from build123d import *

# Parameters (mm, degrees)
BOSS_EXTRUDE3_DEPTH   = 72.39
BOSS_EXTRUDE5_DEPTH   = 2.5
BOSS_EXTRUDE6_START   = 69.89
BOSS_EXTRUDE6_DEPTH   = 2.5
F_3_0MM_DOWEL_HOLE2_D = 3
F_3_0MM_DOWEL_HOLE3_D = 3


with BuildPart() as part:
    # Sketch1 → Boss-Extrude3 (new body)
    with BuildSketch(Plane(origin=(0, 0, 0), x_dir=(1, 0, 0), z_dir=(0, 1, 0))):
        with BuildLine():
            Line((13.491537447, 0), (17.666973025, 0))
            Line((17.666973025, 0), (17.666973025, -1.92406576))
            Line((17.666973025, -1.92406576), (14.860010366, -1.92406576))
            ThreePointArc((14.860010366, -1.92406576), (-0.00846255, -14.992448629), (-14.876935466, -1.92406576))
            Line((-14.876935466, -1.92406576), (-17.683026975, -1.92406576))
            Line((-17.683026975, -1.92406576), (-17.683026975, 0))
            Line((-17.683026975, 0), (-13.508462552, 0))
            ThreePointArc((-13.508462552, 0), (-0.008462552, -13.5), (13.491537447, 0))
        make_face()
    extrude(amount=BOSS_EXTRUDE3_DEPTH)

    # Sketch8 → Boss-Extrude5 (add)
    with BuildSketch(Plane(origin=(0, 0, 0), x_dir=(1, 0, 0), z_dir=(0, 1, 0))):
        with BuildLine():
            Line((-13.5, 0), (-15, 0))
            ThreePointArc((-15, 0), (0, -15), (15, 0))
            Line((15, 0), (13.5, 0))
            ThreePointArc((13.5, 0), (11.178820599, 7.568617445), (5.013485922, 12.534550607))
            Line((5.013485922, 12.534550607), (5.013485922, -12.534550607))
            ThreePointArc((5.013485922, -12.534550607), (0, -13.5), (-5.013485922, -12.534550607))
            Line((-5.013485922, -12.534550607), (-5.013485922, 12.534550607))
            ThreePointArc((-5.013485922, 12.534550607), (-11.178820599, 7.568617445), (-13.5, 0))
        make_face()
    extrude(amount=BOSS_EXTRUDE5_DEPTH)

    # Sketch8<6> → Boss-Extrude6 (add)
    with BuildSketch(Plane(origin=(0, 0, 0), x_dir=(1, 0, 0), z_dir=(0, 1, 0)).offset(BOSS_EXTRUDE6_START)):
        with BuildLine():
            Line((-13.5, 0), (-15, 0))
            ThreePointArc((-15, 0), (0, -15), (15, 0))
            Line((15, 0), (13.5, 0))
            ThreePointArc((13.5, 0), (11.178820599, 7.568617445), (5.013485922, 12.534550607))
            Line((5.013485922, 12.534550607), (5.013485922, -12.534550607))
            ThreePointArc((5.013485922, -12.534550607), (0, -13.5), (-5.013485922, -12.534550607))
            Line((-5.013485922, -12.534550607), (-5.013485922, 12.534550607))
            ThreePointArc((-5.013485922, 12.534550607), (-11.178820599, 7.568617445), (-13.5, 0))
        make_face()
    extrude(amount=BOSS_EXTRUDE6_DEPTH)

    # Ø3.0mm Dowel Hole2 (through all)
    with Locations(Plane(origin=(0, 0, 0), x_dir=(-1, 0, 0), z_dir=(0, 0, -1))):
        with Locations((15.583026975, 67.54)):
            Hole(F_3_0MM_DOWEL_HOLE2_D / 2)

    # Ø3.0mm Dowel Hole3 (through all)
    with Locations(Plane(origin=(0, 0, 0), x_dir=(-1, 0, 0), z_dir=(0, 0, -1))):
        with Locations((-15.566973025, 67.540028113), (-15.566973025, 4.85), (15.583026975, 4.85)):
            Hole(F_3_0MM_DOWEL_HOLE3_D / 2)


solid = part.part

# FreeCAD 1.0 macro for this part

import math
import FreeCAD as App
import Part
import Sketcher

doc = App.newDocument("Part")
body = doc.addObject("PartDesign::Body", "Body")

# Sketch on XZ plane
sketch1 = body.newObject("Sketcher::SketchObject", "Sketch")
sketch1.AttachmentSupport = (doc.getObject("XZ_Plane"), [""])
sketch1.MapMode = "FlatFace"
sketch1.addGeometry(Part.LineSegment(App.Vector(17.7, 0, 0), App.Vector(13.5, 0, 0)), False)
sketch1.addGeometry(Part.ArcOfCircle(Part.Circle(App.Vector(0, 0, 0), App.Vector(0, 0, 1), 13.5), math.radians(0), math.radians(180)), False)
sketch1.addGeometry(Part.LineSegment(App.Vector(-13.5, 0, 0), App.Vector(-17.7, 0, 0)), False)
sketch1.addGeometry(Part.LineSegment(App.Vector(-17.7, 0, 0), App.Vector(-17.7, 1.9, 0)), False)
sketch1.addGeometry(Part.LineSegment(App.Vector(-17.7, 1.9, 0), App.Vector(-14.9, 1.9, 0)), False)
sketch1.addGeometry(Part.ArcOfCircle(Part.Circle(App.Vector(0, 0, 0), App.Vector(0, 0, 1), 15), math.radians(7), math.radians(173)), False)
sketch1.addGeometry(Part.LineSegment(App.Vector(14.9, 1.9, 0), App.Vector(17.7, 1.9, 0)), False)
sketch1.addGeometry(Part.LineSegment(App.Vector(17.7, 1.9, 0), App.Vector(17.7, 0, 0)), False)
sketch1.addConstraint(Sketcher.Constraint("Coincident", 0, 2, 1, 1))
sketch1.addConstraint(Sketcher.Constraint("Coincident", 1, 2, 2, 1))
sketch1.addConstraint(Sketcher.Constraint("Coincident", 2, 2, 3, 1))
sketch1.addConstraint(Sketcher.Constraint("Coincident", 3, 2, 4, 1))
sketch1.addConstraint(Sketcher.Constraint("Coincident", 4, 2, 5, 2))
sketch1.addConstraint(Sketcher.Constraint("Coincident", 5, 1, 6, 1))
sketch1.addConstraint(Sketcher.Constraint("Coincident", 6, 2, 7, 1))
sketch1.addConstraint(Sketcher.Constraint("Coincident", 7, 2, 0, 1))
sketch1.addConstraint(Sketcher.Constraint("Horizontal", 0))
sketch1.addConstraint(Sketcher.Constraint("Horizontal", 2))
sketch1.addConstraint(Sketcher.Constraint("Vertical", 3))
sketch1.addConstraint(Sketcher.Constraint("Horizontal", 4))
sketch1.addConstraint(Sketcher.Constraint("Horizontal", 6))
sketch1.addConstraint(Sketcher.Constraint("Vertical", 7))
sketch1.addConstraint(Sketcher.Constraint("Coincident", 5, 3, 1, 3))
sketch1.addConstraint(Sketcher.Constraint("PointOnObject", 1, 3, -1))
sketch1.addConstraint(Sketcher.Constraint("PointOnObject", 0, 2, -1))
sketch1.addConstraint(Sketcher.Constraint("PointOnObject", 1, 2, -1))
sketch1.addConstraint(Sketcher.Constraint("Horizontal", 4, 2, 5, 1))
sketch1.addConstraint(Sketcher.Constraint("Radius", 1, 13.5))
sketch1.addConstraint(Sketcher.Constraint("Radius", 5, 14.992449))
sketch1.addConstraint(Sketcher.Constraint("DistanceX", 4, 1, 4, 2, 2.806092))
sketch1.addConstraint(Sketcher.Constraint("DistanceX", 0, 2, 0, 1, 4.175436))
sketch1.addConstraint(Sketcher.Constraint("DistanceX", 2, 2, 2, 1, 4.174564))
sketch1.addConstraint(Sketcher.Constraint("DistanceX", -1, 1, 5, 1, 14.86001))
pad1 = body.newObject("PartDesign::Pad", "Pad")
pad1.Profile = sketch1
pad1.Length = 72.39
pad1.Reversed = True

# Sketch on XZ plane
sketch2 = body.newObject("Sketcher::SketchObject", "Sketch001")
sketch2.AttachmentSupport = (doc.getObject("XZ_Plane"), [""])
sketch2.MapMode = "FlatFace"
sketch2.addGeometry(Part.LineSegment(App.Vector(-13.5, 0, 0), App.Vector(-15, 0, 0)), False)
sketch2.addGeometry(Part.ArcOfCircle(Part.Circle(App.Vector(0, 0, 0), App.Vector(0, 0, 1), 15), math.radians(0), math.radians(180)), False)
sketch2.addGeometry(Part.LineSegment(App.Vector(15, 0, 0), App.Vector(13.5, 0, 0)), False)
sketch2.addGeometry(Part.ArcOfCircle(Part.Circle(App.Vector(0, 0, 0), App.Vector(0, 0, 1), 13.5), math.radians(-68), math.radians(0)), False)
sketch2.addGeometry(Part.LineSegment(App.Vector(5, -12.5, 0), App.Vector(5, 12.5, 0)), False)
sketch2.addGeometry(Part.ArcOfCircle(Part.Circle(App.Vector(0, 0, 0), App.Vector(0, 0, 1), 13.5), math.radians(68), math.radians(112)), False)
sketch2.addGeometry(Part.LineSegment(App.Vector(-5, 12.5, 0), App.Vector(-5, -12.5, 0)), False)
sketch2.addGeometry(Part.ArcOfCircle(Part.Circle(App.Vector(0, 0, 0), App.Vector(0, 0, 1), 13.5), math.radians(180), math.radians(248)), False)
sketch2.addConstraint(Sketcher.Constraint("Coincident", 0, 2, 1, 2))
sketch2.addConstraint(Sketcher.Constraint("Coincident", 1, 1, 2, 1))
sketch2.addConstraint(Sketcher.Constraint("Coincident", 2, 2, 3, 2))
sketch2.addConstraint(Sketcher.Constraint("Coincident", 3, 1, 4, 1))
sketch2.addConstraint(Sketcher.Constraint("Coincident", 4, 2, 5, 1))
sketch2.addConstraint(Sketcher.Constraint("Coincident", 5, 2, 6, 1))
sketch2.addConstraint(Sketcher.Constraint("Coincident", 6, 2, 7, 2))
sketch2.addConstraint(Sketcher.Constraint("Coincident", 7, 1, 0, 1))
sketch2.addConstraint(Sketcher.Constraint("Horizontal", 0))
sketch2.addConstraint(Sketcher.Constraint("Horizontal", 2))
sketch2.addConstraint(Sketcher.Constraint("Vertical", 4))
sketch2.addConstraint(Sketcher.Constraint("Vertical", 6))
sketch2.addConstraint(Sketcher.Constraint("Coincident", 1, 3, -1, 1))
sketch2.addConstraint(Sketcher.Constraint("Coincident", 3, 3, -1, 1))
sketch2.addConstraint(Sketcher.Constraint("Coincident", 5, 3, -1, 1))
sketch2.addConstraint(Sketcher.Constraint("Coincident", 7, 3, -1, 1))
sketch2.addConstraint(Sketcher.Constraint("Equal", 3, 5))
sketch2.addConstraint(Sketcher.Constraint("Equal", 5, 7))
sketch2.addConstraint(Sketcher.Constraint("PointOnObject", 0, 2, -1))
sketch2.addConstraint(Sketcher.Constraint("PointOnObject", 1, 1, -1))
sketch2.addConstraint(Sketcher.Constraint("Horizontal", 4, 2, 5, 2))
sketch2.addConstraint(Sketcher.Constraint("Radius", 1, 15.0))
sketch2.addConstraint(Sketcher.Constraint("Radius", 3, 13.5))
sketch2.addConstraint(Sketcher.Constraint("DistanceY", 4, 1, 4, 2, 25.069101))
pad2 = body.newObject("PartDesign::Pad", "Pad001")
pad2.Profile = sketch2
pad2.Length = 2.5
pad2.Reversed = True

# Sketch on XZ plane
sketch3 = body.newObject("Sketcher::SketchObject", "Sketch002")
sketch3.AttachmentSupport = (doc.getObject("XZ_Plane"), [""])
sketch3.MapMode = "FlatFace"
sketch3.AttachmentOffset = App.Placement(App.Vector(0, 0, -69.89), App.Rotation())
sketch3.addGeometry(Part.LineSegment(App.Vector(-13.5, 0, 0), App.Vector(-15, 0, 0)), False)
sketch3.addGeometry(Part.ArcOfCircle(Part.Circle(App.Vector(0, 0, 0), App.Vector(0, 0, 1), 15), math.radians(0), math.radians(180)), False)
sketch3.addGeometry(Part.LineSegment(App.Vector(15, 0, 0), App.Vector(13.5, 0, 0)), False)
sketch3.addGeometry(Part.ArcOfCircle(Part.Circle(App.Vector(0, 0, 0), App.Vector(0, 0, 1), 13.5), math.radians(-68), math.radians(0)), False)
sketch3.addGeometry(Part.LineSegment(App.Vector(5, -12.5, 0), App.Vector(5, 12.5, 0)), False)
sketch3.addGeometry(Part.ArcOfCircle(Part.Circle(App.Vector(0, 0, 0), App.Vector(0, 0, 1), 13.5), math.radians(68), math.radians(112)), False)
sketch3.addGeometry(Part.LineSegment(App.Vector(-5, 12.5, 0), App.Vector(-5, -12.5, 0)), False)
sketch3.addGeometry(Part.ArcOfCircle(Part.Circle(App.Vector(0, 0, 0), App.Vector(0, 0, 1), 13.5), math.radians(180), math.radians(248)), False)
sketch3.addConstraint(Sketcher.Constraint("Coincident", 0, 2, 1, 2))
sketch3.addConstraint(Sketcher.Constraint("Coincident", 1, 1, 2, 1))
sketch3.addConstraint(Sketcher.Constraint("Coincident", 2, 2, 3, 2))
sketch3.addConstraint(Sketcher.Constraint("Coincident", 3, 1, 4, 1))
sketch3.addConstraint(Sketcher.Constraint("Coincident", 4, 2, 5, 1))
sketch3.addConstraint(Sketcher.Constraint("Coincident", 5, 2, 6, 1))
sketch3.addConstraint(Sketcher.Constraint("Coincident", 6, 2, 7, 2))
sketch3.addConstraint(Sketcher.Constraint("Coincident", 7, 1, 0, 1))
sketch3.addConstraint(Sketcher.Constraint("Horizontal", 0))
sketch3.addConstraint(Sketcher.Constraint("Horizontal", 2))
sketch3.addConstraint(Sketcher.Constraint("Vertical", 4))
sketch3.addConstraint(Sketcher.Constraint("Vertical", 6))
sketch3.addConstraint(Sketcher.Constraint("Coincident", 1, 3, -1, 1))
sketch3.addConstraint(Sketcher.Constraint("Coincident", 3, 3, -1, 1))
sketch3.addConstraint(Sketcher.Constraint("Coincident", 5, 3, -1, 1))
sketch3.addConstraint(Sketcher.Constraint("Coincident", 7, 3, -1, 1))
sketch3.addConstraint(Sketcher.Constraint("Equal", 3, 5))
sketch3.addConstraint(Sketcher.Constraint("Equal", 5, 7))
sketch3.addConstraint(Sketcher.Constraint("PointOnObject", 0, 2, -1))
sketch3.addConstraint(Sketcher.Constraint("PointOnObject", 1, 1, -1))
sketch3.addConstraint(Sketcher.Constraint("Horizontal", 4, 2, 5, 2))
sketch3.addConstraint(Sketcher.Constraint("Radius", 1, 15.0))
sketch3.addConstraint(Sketcher.Constraint("Radius", 3, 13.5))
sketch3.addConstraint(Sketcher.Constraint("DistanceY", 4, 1, 4, 2, 25.069101))
pad3 = body.newObject("PartDesign::Pad", "Pad002")
pad3.Profile = sketch3
pad3.Length = 2.5
pad3.Reversed = True

# Sketch on XY plane
sketch4 = body.newObject("Sketcher::SketchObject", "Sketch003")
sketch4.AttachmentSupport = (doc.getObject("XY_Plane"), [""])
sketch4.MapMode = "FlatFace"
sketch4.addGeometry(Part.Circle(App.Vector(-15.6, 67.5, 0), App.Vector(0, 0, 1), 1.5), False)
sketch4.addConstraint(Sketcher.Constraint("Diameter", 0, 3.0))
sketch4.addConstraint(Sketcher.Constraint("DistanceY", -1, 1, 0, 3, 67.54))
sketch4.addConstraint(Sketcher.Constraint("DistanceX", 0, 3, -1, 1, 15.583027))
doc.recompute()
hole = body.newObject("PartDesign::Hole", "Hole")
hole.Profile = sketch4
hole.ThreadType = "None"
hole.Diameter = 3
hole.DepthType = "ThroughAll"
hole.Reversed = True

# Sketch on XY plane
sketch5 = body.newObject("Sketcher::SketchObject", "Sketch004")
sketch5.AttachmentSupport = (doc.getObject("XY_Plane"), [""])
sketch5.MapMode = "FlatFace"
sketch5.addGeometry(Part.Circle(App.Vector(15.6, 67.5, 0), App.Vector(0, 0, 1), 1.5), False)
sketch5.addGeometry(Part.Circle(App.Vector(15.6, 4.8, 0), App.Vector(0, 0, 1), 1.5), False)
sketch5.addGeometry(Part.Circle(App.Vector(-15.6, 4.8, 0), App.Vector(0, 0, 1), 1.5), False)
sketch5.addConstraint(Sketcher.Constraint("Equal", 0, 1))
sketch5.addConstraint(Sketcher.Constraint("Equal", 1, 2))
sketch5.addConstraint(Sketcher.Constraint("Horizontal", 1, 3, 2, 3))
sketch5.addConstraint(Sketcher.Constraint("Vertical", 0, 3, 1, 3))
sketch5.addConstraint(Sketcher.Constraint("Diameter", 0, 3.0))
sketch5.addConstraint(Sketcher.Constraint("DistanceY", -1, 1, 1, 3, 4.85))
sketch5.addConstraint(Sketcher.Constraint("DistanceX", 2, 3, 1, 3, 31.15))
sketch5.addConstraint(Sketcher.Constraint("DistanceY", -1, 1, 0, 3, 67.540028))
sketch5.addConstraint(Sketcher.Constraint("DistanceX", -1, 1, 0, 3, 15.566973))
doc.recompute()
hole2 = body.newObject("PartDesign::Hole", "Hole001")
hole2.Profile = sketch5
hole2.ThreadType = "None"
hole2.Diameter = 3
hole2.DepthType = "ThroughAll"
hole2.Reversed = True

doc.recompute()
